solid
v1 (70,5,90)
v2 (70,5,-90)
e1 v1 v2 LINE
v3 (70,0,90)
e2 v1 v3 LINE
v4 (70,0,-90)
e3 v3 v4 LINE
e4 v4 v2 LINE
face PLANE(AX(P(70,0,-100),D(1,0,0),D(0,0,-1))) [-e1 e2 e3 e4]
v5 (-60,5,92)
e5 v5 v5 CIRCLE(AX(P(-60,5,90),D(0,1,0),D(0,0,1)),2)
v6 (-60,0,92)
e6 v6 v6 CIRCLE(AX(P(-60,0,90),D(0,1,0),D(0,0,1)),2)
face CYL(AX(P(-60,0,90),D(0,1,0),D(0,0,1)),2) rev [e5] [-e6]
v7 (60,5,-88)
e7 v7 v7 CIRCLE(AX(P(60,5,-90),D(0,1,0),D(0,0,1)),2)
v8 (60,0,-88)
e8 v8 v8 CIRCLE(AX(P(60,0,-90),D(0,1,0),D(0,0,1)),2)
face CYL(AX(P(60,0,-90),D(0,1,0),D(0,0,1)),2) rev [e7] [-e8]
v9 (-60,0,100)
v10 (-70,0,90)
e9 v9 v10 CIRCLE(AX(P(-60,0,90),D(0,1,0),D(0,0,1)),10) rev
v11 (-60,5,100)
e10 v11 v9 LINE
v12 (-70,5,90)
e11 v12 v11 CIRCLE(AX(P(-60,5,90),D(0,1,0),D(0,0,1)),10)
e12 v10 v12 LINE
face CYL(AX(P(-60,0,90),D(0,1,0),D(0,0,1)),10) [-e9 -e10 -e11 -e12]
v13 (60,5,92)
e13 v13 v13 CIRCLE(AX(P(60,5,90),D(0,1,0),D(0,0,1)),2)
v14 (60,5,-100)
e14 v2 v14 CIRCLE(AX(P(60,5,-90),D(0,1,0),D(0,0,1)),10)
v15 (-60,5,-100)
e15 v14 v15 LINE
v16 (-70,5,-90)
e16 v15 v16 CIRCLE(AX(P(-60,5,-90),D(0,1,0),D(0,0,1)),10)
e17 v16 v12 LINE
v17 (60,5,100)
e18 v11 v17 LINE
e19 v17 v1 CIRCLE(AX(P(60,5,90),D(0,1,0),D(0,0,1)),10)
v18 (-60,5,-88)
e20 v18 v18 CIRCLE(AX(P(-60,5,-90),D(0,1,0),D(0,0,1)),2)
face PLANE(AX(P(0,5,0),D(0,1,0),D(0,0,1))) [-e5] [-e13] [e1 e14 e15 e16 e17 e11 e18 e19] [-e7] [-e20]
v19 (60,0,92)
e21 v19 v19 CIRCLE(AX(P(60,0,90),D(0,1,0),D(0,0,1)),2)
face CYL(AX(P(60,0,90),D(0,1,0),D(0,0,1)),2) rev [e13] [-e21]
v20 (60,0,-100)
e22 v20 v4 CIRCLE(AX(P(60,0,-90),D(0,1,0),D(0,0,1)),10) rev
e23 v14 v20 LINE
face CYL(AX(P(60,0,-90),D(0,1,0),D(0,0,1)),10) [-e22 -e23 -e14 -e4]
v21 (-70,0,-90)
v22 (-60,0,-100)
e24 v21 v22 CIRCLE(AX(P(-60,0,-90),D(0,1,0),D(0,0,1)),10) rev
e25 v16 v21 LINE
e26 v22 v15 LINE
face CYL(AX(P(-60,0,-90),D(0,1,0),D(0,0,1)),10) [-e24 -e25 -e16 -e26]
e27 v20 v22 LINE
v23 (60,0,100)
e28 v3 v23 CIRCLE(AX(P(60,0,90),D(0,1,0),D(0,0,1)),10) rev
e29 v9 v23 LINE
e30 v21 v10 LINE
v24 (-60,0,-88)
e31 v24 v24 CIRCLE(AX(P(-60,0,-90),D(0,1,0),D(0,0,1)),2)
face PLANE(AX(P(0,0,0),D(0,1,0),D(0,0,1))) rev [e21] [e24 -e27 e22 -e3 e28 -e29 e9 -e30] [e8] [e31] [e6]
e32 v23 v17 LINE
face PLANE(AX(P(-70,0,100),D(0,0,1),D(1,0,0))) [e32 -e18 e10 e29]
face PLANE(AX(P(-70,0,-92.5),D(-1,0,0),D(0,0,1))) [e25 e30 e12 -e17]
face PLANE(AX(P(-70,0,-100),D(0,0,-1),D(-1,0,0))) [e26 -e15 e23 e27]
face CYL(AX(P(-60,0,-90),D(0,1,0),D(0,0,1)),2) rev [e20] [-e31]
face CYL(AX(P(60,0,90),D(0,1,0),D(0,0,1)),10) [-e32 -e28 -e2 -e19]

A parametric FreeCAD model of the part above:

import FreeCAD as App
import Part
import Sketcher
from FreeCAD import Vector
Q = App.Units.Quantity


def edges_at(feature, points):
    """Names of the edges that pass closest to the given points."""
    edges = feature.Shape.Edges
    near = lambda p: min(range(len(edges)), key=lambda i: edges[i].distToShape(Part.Vertex(*p))[0])
    return sorted({f"Edge{near(p) + 1}" for p in points})

doc = App.newDocument("Part")
body = doc.addObject("PartDesign::Body", "Body")

# Sketch on XZ plane
sketch1 = body.newObject("Sketcher::SketchObject", "Sketch")
sketch1.AttachmentSupport = (doc.getObject("XZ_Plane"), [""])
sketch1.MapMode = "FlatFace"
sketch1.addGeometry([
    Part.LineSegment(Vector(-90, -90, 0), Vector(-90, 90, 0)),
    Part.LineSegment(Vector(-90, 90, 0), Vector(90, 90, 0)),
    Part.LineSegment(Vector(90, 90, 0), Vector(90, -90, 0)),
    Part.LineSegment(Vector(90, -90, 0), Vector(-90, -90, 0)),
], False)
sketch1.addConstraint([
    Sketcher.Constraint("Coincident", 0, 2, 1, 1),
    Sketcher.Constraint("Coincident", 1, 2, 2, 1),
    Sketcher.Constraint("Coincident", 2, 2, 3, 1),
    Sketcher.Constraint("Coincident", 3, 2, 0, 1),
    Sketcher.Constraint("Vertical", 0),
    Sketcher.Constraint("Horizontal", 1),
    Sketcher.Constraint("Vertical", 2),
    Sketcher.Constraint("Horizontal", 3),
    Sketcher.Constraint("Symmetric", 0, 2, 2, 2, -1, 1),
    Sketcher.Constraint("Equal", 3, 0),
    Sketcher.Constraint("DistanceX", 1, 1, 1, 2, Q("180 mm")),
])
pad1 = body.newObject("PartDesign::Pad", "Pad")
pad1.Profile = sketch1
pad1.Length = 5
pad1.Reversed = True

# Sketch on XZ plane
sketch2 = body.newObject("Sketcher::SketchObject", "Sketch001")
sketch2.AttachmentSupport = (doc.getObject("XZ_Plane"), [""])
sketch2.MapMode = "FlatFace"
sketch2.AttachmentOffset = App.Placement(Vector(0, 0, -5), App.Rotation())
sketch2.addGeometry([
    Part.LineSegment(Vector(-90, -92.5, 0), Vector(-90, -90, 0)),
    Part.LineSegment(Vector(-90, -90, 0), Vector(90, -90, 0)),
    Part.LineSegment(Vector(90, -90, 0), Vector(90, -92.5, 0)),
    Part.LineSegment(Vector(90, -92.5, 0), Vector(-90, -92.5, 0)),
], False)
sketch2.addConstraint([
    Sketcher.Constraint("Coincident", 0, 2, 1, 1),
    Sketcher.Constraint("Coincident", 1, 2, 2, 1),
    Sketcher.Constraint("Coincident", 2, 2, 3, 1),
    Sketcher.Constraint("Coincident", 3, 2, 0, 1),
    Sketcher.Constraint("Vertical", 0),
    Sketcher.Constraint("Horizontal", 1),
    Sketcher.Constraint("Vertical", 2),
    Sketcher.Constraint("Horizontal", 3),
    Sketcher.Constraint("DistanceX", 1, 1, 1, 2, Q("180 mm")),
    Sketcher.Constraint("DistanceY", 0, 1, 0, 2, Q("2.5 mm")),
    Sketcher.Constraint("DistanceX", 0, 2, -1, 1, Q("90 mm")),
    Sketcher.Constraint("DistanceY", 0, 2, -1, 1, Q("90 mm")),
])
pad2 = body.newObject("PartDesign::Pad", "Pad001")
pad2.Profile = sketch2
pad2.Length = 5

# Sketch on XZ plane
sketch3 = body.newObject("Sketcher::SketchObject", "Sketch002")
sketch3.AttachmentSupport = (doc.getObject("XZ_Plane"), [""])
sketch3.MapMode = "FlatFace"
sketch3.AttachmentOffset = App.Placement(Vector(0, 0, -5), App.Rotation())
sketch3.addGeometry([
    Part.Circle(Vector(70, -80, 0), Vector(0, 0, 1), 2.6),  # 0
    Part.LineSegment(Vector(77.5, -92.5, 0), Vector(77.5, 90, 0)),  # 1
    Part.LineSegment(Vector(77.5, 90, 0), Vector(90, 90, 0)),  # 2
    Part.LineSegment(Vector(90, 90, 0), Vector(90, -92.5, 0)),  # 3
    Part.LineSegment(Vector(90, -92.5, 0), Vector(77.5, -92.5, 0)),  # 4
], False)
sketch3.addConstraint([
    Sketcher.Constraint("Coincident", 1, 2, 2, 1),
    Sketcher.Constraint("Coincident", 2, 2, 3, 1),
    Sketcher.Constraint("Coincident", 3, 2, 4, 1),
    Sketcher.Constraint("Coincident", 4, 2, 1, 1),
    Sketcher.Constraint("Vertical", 1),
    Sketcher.Constraint("Horizontal", 2),
    Sketcher.Constraint("Vertical", 3),
    Sketcher.Constraint("Horizontal", 4),
    Sketcher.Constraint("Diameter", 0, Q("5.3 mm")),
    Sketcher.Constraint("DistanceX", 2, 1, 2, 2, Q("12.5 mm")),
    Sketcher.Constraint("DistanceY", 1, 1, 1, 2, Q("182.5 mm")),
    Sketcher.Constraint("DistanceX", -1, 1, 0, 3, Q("70 mm")),
    Sketcher.Constraint("DistanceY", 0, 3, -1, 1, Q("80 mm")),
    Sketcher.Constraint("DistanceY", -1, 1, 1, 2, Q("90 mm")),
    Sketcher.Constraint("DistanceX", -1, 1, 2, 2, Q("90 mm")),
])
pocket1 = body.newObject("PartDesign::Pocket", "Pocket")
pocket1.Profile = sketch3
pocket1.Type = "ThroughAll"
pocket1.Midplane = True

# Sketch on XZ plane
sketch4 = body.newObject("Sketcher::SketchObject", "Sketch003")
sketch4.AttachmentSupport = (doc.getObject("XZ_Plane"), [""])
sketch4.MapMode = "FlatFace"
sketch4.AttachmentOffset = App.Placement(Vector(0, 0, -5), App.Rotation())
sketch4.addGeometry([
    Part.LineSegment(Vector(-90, 90, 0), Vector(-90, 92.5, 0)),
    Part.LineSegment(Vector(-90, 92.5, 0), Vector(77.5, 92.5, 0)),
    Part.LineSegment(Vector(77.5, 92.5, 0), Vector(77.5, 90, 0)),
    Part.LineSegment(Vector(77.5, 90, 0), Vector(-90, 90, 0)),
], False)
sketch4.addConstraint([
    Sketcher.Constraint("Coincident", 0, 2, 1, 1),
    Sketcher.Constraint("Coincident", 1, 2, 2, 1),
    Sketcher.Constraint("Coincident", 2, 2, 3, 1),
    Sketcher.Constraint("Coincident", 3, 2, 0, 1),
    Sketcher.Constraint("Vertical", 0),
    Sketcher.Constraint("Horizontal", 1),
    Sketcher.Constraint("Vertical", 2),
    Sketcher.Constraint("Horizontal", 3),
    Sketcher.Constraint("DistanceX", 1, 1, 1, 2, Q("167.5 mm")),
    Sketcher.Constraint("DistanceY", 0, 1, 0, 2, Q("2.5 mm")),
    Sketcher.Constraint("DistanceX", 0, 2, -1, 1, Q("90 mm")),
    Sketcher.Constraint("DistanceY", -1, 1, 2, 2, Q("90 mm")),
])
pad3 = body.newObject("PartDesign::Pad", "Pad002")
pad3.Profile = sketch4
pad3.Length = 5
doc.recompute()

fillet = body.newObject("PartDesign::Fillet", "Fillet")
fillet.Base = (pad3, edges_at(pad3, [
    (-90, 2.5, -92.5),
    (77.5, 2.5, -92.5),
    (77.5, 2.5, 92.5),
    (-90, 2.5, 92.5),
]))
fillet.Radius = 10

# Sketch on XZ plane
sketch5 = body.newObject("Sketcher::SketchObject", "Sketch004")
sketch5.AttachmentSupport = (doc.getObject("XZ_Plane"), [""])
sketch5.MapMode = "FlatFace"
sketch5.AttachmentOffset = App.Placement(Vector(0, 0, -5), App.Rotation())
sketch5.addGeometry(Part.Circle(Vector(70, -80, 0), Vector(0, 0, 1), 6), False)
sketch5.addConstraint([
    Sketcher.Constraint("DistanceX", -1, 1, 0, 3, Q("70 mm")),
    Sketcher.Constraint("DistanceY", 0, 3, -1, 1, Q("80 mm")),
    Sketcher.Constraint("Diameter", 0, Q("11.651274 mm")),
])
pad4 = body.newObject("PartDesign::Pad", "Pad003")
pad4.Profile = sketch5
pad4.Length = 5

# Sketch on XZ plane
sketch6 = body.newObject("Sketcher::SketchObject", "Sketch005")
sketch6.AttachmentSupport = (doc.getObject("XZ_Plane"), [""])
sketch6.MapMode = "FlatFace"
sketch6.AttachmentOffset = App.Placement(Vector(0, 0, -5), App.Rotation())
sketch6.addGeometry([
    Part.Circle(Vector(-82.5, -85, 0), Vector(0, 0, 1), 1.5),
    Part.Circle(Vector(70, -80, 0), Vector(0, 0, 1), 1.5),
    Part.Circle(Vector(-82.5, 85, 0), Vector(0, 0, 1), 1.5),
    Part.Circle(Vector(70, 80, 0), Vector(0, 0, 1), 1.5),
], False)
sketch6.addConstraint([
    Sketcher.Constraint("Equal", 0, 1),
    Sketcher.Constraint("Equal", 1, 2),
    Sketcher.Constraint("Equal", 2, 3),
    Sketcher.Constraint("Symmetric", 0, 3, 2, 3, -1),
    Sketcher.Constraint("Symmetric", 1, 3, 3, 3, -1),
    Sketcher.Constraint("Diameter", 0, Q("3 mm")),
    Sketcher.Constraint("DistanceY", 0, 3, -1, 1, Q("85 mm")),
    Sketcher.Constraint("DistanceX", -1, 1, 1, 3, Q("70 mm")),
    Sketcher.Constraint("DistanceY", 1, 3, -1, 1, Q("80 mm")),
    Sketcher.Constraint("DistanceX", 0, 3, -1, 1, Q("82.5 mm")),
])
pocket2 = body.newObject("PartDesign::Pocket", "Pocket001")
pocket2.Profile = sketch6
pocket2.Type = "ThroughAll"
pocket2.Midplane = True

# Sketch on XZ plane
sketch7 = body.newObject("Sketcher::SketchObject", "Sketch006")
sketch7.AttachmentSupport = (doc.getObject("XZ_Plane"), [""])
sketch7.MapMode = "FlatFace"
sketch7.AttachmentOffset = App.Placement(Vector(0, 0, -5), App.Rotation())
sketch7.addGeometry([
    Part.LineSegment(Vector(-70, -100, 0), Vector(-70, 100, 0)),
    Part.LineSegment(Vector(-70, 100, 0), Vector(70, 100, 0)),
    Part.LineSegment(Vector(70, 100, 0), Vector(70, -100, 0)),
    Part.LineSegment(Vector(70, -100, 0), Vector(-70, -100, 0)),
], False)
sketch7.addConstraint([
    Sketcher.Constraint("Coincident", 0, 2, 1, 1),
    Sketcher.Constraint("Coincident", 1, 2, 2, 1),
    Sketcher.Constraint("Coincident", 2, 2, 3, 1),
    Sketcher.Constraint("Coincident", 3, 2, 0, 1),
    Sketcher.Constraint("Vertical", 0),
    Sketcher.Constraint("Horizontal", 1),
    Sketcher.Constraint("Vertical", 2),
    Sketcher.Constraint("Horizontal", 3),
    Sketcher.Constraint("Symmetric", 0, 2, 2, 2, -1, 1),
    Sketcher.Constraint("DistanceX", 1, 1, 1, 2, Q("140 mm")),
    Sketcher.Constraint("DistanceY", 0, 1, 0, 2, Q("200 mm")),
])
pad5 = body.newObject("PartDesign::Pad", "Pad004")
pad5.Profile = sketch7
pad5.Length = 5

# Sketch on XZ plane
sketch8 = body.newObject("Sketcher::SketchObject", "Sketch007")
sketch8.AttachmentSupport = (doc.getObject("XZ_Plane"), [""])
sketch8.MapMode = "FlatFace"
sketch8.AttachmentOffset = App.Placement(Vector(0, 0, -5), App.Rotation())
sketch8.addGeometry([
    Part.LineSegment(Vector(-70, 100, 0), Vector(-70, -100, 0)),  # 0
    Part.LineSegment(Vector(-70, -100, 0), Vector(-180, -129, 0)),  # 1
    Part.LineSegment(Vector(-180, -129, 0), Vector(-180, 100, 0)),  # 2
    Part.LineSegment(Vector(-180, 100, 0), Vector(-70, 100, 0)),  # 3
    Part.LineSegment(Vector(70, -100, 0), Vector(70, 100, 0)),  # 4
    Part.LineSegment(Vector(70, 100, 0), Vector(197, 115, 0)),  # 5
    Part.LineSegment(Vector(197, 115, 0), Vector(174, -115, 0)),  # 6
    Part.LineSegment(Vector(174, -115, 0), Vector(70, -100, 0)),  # 7
], False)
sketch8.addConstraint([
    Sketcher.Constraint("Coincident", 0, 2, 1, 1),
    Sketcher.Constraint("Coincident", 1, 2, 2, 1),
    Sketcher.Constraint("Coincident", 2, 2, 3, 1),
    Sketcher.Constraint("Coincident", 3, 2, 0, 1),
    Sketcher.Constraint("Coincident", 4, 2, 5, 1),
    Sketcher.Constraint("Coincident", 5, 2, 6, 1),
    Sketcher.Constraint("Coincident", 6, 2, 7, 1),
    Sketcher.Constraint("Coincident", 7, 2, 4, 1),
    Sketcher.Constraint("Vertical", 0),
    Sketcher.Constraint("Vertical", 2),
    Sketcher.Constraint("Horizontal", 3),
    Sketcher.Constraint("Vertical", 4),
    Sketcher.Constraint("Symmetric", 0, 2, 4, 2, -1, 1),
    Sketcher.Constraint("Horizontal", 3, 2, 4, 2),
    Sketcher.Constraint("Horizontal", 0, 2, 7, 2),
    Sketcher.Constraint("DistanceY", 0, 2, 0, 1, Q("200 mm")),
    Sketcher.Constraint("DistanceX", 0, 2, -1, 1, Q("70 mm")),
    Sketcher.Constraint("Distance", 1, Q("113.688011 mm")),
    Sketcher.Constraint("Distance", 7, Q("104.790219 mm")),
    Sketcher.Constraint("DistanceX", 3, 1, 3, 2, Q("109.825653 mm")),
    Sketcher.Constraint("DistanceX", 6, 2, 5, 2, Q("23.664869 mm")),
    Sketcher.Constraint("DistanceY", 6, 2, 5, 2, Q("229.266059 mm")),
    Sketcher.Constraint("DistanceX", 1, 2, 6, 2, Q("353.580979 mm")),
])
pocket3 = body.newObject("PartDesign::Pocket", "Pocket002")
pocket3.Profile = sketch8
pocket3.Type = "ThroughAll"
pocket3.Midplane = True
doc.recompute()

fillet2 = body.newObject("PartDesign::Fillet", "Fillet001")
fillet2.Base = (pocket3, edges_at(pocket3, [
    (70, 2.5, -100),
    (-70, 2.5, -100),
    (70, 2.5, 100),
    (-70, 2.5, 100),
]))
fillet2.Radius = 10

# Sketch on XZ plane
sketch9 = body.newObject("Sketcher::SketchObject", "Sketch008")
sketch9.AttachmentSupport = (doc.getObject("XZ_Plane"), [""])
sketch9.MapMode = "FlatFace"
sketch9.AttachmentOffset = App.Placement(Vector(0, 0, -5), App.Rotation())
sketch9.addGeometry([
    Part.Circle(Vector(-60, -90, 0), Vector(0, 0, 1), 2),
    Part.Circle(Vector(60, -90, 0), Vector(0, 0, 1), 2),
    Part.Circle(Vector(-60, 90, 0), Vector(0, 0, 1), 2),
    Part.Circle(Vector(60, 90, 0), Vector(0, 0, 1), 2),
], False)
sketch9.addConstraint([
    Sketcher.Constraint("Equal", 0, 1),
    Sketcher.Constraint("Equal", 1, 2),
    Sketcher.Constraint("Equal", 2, 3),
    Sketcher.Constraint("Symmetric", 1, 3, 2, 3, -1, 1),
    Sketcher.Constraint("Symmetric", 0, 3, 3, 3, -1, 1),
    Sketcher.Constraint("Symmetric", 0, 3, 1, 3, -2),
    Sketcher.Constraint("Diameter", 0, Q("4 mm")),
    Sketcher.Constraint("DistanceX", 0, 3, -1, 1, Q("60 mm")),
    Sketcher.Constraint("DistanceY", 0, 3, -1, 1, Q("90 mm")),
])
pocket4 = body.newObject("PartDesign::Pocket", "Pocket003")
pocket4.Profile = sketch9
pocket4.Type = "ThroughAll"
pocket4.Midplane = True

doc.recompute()
